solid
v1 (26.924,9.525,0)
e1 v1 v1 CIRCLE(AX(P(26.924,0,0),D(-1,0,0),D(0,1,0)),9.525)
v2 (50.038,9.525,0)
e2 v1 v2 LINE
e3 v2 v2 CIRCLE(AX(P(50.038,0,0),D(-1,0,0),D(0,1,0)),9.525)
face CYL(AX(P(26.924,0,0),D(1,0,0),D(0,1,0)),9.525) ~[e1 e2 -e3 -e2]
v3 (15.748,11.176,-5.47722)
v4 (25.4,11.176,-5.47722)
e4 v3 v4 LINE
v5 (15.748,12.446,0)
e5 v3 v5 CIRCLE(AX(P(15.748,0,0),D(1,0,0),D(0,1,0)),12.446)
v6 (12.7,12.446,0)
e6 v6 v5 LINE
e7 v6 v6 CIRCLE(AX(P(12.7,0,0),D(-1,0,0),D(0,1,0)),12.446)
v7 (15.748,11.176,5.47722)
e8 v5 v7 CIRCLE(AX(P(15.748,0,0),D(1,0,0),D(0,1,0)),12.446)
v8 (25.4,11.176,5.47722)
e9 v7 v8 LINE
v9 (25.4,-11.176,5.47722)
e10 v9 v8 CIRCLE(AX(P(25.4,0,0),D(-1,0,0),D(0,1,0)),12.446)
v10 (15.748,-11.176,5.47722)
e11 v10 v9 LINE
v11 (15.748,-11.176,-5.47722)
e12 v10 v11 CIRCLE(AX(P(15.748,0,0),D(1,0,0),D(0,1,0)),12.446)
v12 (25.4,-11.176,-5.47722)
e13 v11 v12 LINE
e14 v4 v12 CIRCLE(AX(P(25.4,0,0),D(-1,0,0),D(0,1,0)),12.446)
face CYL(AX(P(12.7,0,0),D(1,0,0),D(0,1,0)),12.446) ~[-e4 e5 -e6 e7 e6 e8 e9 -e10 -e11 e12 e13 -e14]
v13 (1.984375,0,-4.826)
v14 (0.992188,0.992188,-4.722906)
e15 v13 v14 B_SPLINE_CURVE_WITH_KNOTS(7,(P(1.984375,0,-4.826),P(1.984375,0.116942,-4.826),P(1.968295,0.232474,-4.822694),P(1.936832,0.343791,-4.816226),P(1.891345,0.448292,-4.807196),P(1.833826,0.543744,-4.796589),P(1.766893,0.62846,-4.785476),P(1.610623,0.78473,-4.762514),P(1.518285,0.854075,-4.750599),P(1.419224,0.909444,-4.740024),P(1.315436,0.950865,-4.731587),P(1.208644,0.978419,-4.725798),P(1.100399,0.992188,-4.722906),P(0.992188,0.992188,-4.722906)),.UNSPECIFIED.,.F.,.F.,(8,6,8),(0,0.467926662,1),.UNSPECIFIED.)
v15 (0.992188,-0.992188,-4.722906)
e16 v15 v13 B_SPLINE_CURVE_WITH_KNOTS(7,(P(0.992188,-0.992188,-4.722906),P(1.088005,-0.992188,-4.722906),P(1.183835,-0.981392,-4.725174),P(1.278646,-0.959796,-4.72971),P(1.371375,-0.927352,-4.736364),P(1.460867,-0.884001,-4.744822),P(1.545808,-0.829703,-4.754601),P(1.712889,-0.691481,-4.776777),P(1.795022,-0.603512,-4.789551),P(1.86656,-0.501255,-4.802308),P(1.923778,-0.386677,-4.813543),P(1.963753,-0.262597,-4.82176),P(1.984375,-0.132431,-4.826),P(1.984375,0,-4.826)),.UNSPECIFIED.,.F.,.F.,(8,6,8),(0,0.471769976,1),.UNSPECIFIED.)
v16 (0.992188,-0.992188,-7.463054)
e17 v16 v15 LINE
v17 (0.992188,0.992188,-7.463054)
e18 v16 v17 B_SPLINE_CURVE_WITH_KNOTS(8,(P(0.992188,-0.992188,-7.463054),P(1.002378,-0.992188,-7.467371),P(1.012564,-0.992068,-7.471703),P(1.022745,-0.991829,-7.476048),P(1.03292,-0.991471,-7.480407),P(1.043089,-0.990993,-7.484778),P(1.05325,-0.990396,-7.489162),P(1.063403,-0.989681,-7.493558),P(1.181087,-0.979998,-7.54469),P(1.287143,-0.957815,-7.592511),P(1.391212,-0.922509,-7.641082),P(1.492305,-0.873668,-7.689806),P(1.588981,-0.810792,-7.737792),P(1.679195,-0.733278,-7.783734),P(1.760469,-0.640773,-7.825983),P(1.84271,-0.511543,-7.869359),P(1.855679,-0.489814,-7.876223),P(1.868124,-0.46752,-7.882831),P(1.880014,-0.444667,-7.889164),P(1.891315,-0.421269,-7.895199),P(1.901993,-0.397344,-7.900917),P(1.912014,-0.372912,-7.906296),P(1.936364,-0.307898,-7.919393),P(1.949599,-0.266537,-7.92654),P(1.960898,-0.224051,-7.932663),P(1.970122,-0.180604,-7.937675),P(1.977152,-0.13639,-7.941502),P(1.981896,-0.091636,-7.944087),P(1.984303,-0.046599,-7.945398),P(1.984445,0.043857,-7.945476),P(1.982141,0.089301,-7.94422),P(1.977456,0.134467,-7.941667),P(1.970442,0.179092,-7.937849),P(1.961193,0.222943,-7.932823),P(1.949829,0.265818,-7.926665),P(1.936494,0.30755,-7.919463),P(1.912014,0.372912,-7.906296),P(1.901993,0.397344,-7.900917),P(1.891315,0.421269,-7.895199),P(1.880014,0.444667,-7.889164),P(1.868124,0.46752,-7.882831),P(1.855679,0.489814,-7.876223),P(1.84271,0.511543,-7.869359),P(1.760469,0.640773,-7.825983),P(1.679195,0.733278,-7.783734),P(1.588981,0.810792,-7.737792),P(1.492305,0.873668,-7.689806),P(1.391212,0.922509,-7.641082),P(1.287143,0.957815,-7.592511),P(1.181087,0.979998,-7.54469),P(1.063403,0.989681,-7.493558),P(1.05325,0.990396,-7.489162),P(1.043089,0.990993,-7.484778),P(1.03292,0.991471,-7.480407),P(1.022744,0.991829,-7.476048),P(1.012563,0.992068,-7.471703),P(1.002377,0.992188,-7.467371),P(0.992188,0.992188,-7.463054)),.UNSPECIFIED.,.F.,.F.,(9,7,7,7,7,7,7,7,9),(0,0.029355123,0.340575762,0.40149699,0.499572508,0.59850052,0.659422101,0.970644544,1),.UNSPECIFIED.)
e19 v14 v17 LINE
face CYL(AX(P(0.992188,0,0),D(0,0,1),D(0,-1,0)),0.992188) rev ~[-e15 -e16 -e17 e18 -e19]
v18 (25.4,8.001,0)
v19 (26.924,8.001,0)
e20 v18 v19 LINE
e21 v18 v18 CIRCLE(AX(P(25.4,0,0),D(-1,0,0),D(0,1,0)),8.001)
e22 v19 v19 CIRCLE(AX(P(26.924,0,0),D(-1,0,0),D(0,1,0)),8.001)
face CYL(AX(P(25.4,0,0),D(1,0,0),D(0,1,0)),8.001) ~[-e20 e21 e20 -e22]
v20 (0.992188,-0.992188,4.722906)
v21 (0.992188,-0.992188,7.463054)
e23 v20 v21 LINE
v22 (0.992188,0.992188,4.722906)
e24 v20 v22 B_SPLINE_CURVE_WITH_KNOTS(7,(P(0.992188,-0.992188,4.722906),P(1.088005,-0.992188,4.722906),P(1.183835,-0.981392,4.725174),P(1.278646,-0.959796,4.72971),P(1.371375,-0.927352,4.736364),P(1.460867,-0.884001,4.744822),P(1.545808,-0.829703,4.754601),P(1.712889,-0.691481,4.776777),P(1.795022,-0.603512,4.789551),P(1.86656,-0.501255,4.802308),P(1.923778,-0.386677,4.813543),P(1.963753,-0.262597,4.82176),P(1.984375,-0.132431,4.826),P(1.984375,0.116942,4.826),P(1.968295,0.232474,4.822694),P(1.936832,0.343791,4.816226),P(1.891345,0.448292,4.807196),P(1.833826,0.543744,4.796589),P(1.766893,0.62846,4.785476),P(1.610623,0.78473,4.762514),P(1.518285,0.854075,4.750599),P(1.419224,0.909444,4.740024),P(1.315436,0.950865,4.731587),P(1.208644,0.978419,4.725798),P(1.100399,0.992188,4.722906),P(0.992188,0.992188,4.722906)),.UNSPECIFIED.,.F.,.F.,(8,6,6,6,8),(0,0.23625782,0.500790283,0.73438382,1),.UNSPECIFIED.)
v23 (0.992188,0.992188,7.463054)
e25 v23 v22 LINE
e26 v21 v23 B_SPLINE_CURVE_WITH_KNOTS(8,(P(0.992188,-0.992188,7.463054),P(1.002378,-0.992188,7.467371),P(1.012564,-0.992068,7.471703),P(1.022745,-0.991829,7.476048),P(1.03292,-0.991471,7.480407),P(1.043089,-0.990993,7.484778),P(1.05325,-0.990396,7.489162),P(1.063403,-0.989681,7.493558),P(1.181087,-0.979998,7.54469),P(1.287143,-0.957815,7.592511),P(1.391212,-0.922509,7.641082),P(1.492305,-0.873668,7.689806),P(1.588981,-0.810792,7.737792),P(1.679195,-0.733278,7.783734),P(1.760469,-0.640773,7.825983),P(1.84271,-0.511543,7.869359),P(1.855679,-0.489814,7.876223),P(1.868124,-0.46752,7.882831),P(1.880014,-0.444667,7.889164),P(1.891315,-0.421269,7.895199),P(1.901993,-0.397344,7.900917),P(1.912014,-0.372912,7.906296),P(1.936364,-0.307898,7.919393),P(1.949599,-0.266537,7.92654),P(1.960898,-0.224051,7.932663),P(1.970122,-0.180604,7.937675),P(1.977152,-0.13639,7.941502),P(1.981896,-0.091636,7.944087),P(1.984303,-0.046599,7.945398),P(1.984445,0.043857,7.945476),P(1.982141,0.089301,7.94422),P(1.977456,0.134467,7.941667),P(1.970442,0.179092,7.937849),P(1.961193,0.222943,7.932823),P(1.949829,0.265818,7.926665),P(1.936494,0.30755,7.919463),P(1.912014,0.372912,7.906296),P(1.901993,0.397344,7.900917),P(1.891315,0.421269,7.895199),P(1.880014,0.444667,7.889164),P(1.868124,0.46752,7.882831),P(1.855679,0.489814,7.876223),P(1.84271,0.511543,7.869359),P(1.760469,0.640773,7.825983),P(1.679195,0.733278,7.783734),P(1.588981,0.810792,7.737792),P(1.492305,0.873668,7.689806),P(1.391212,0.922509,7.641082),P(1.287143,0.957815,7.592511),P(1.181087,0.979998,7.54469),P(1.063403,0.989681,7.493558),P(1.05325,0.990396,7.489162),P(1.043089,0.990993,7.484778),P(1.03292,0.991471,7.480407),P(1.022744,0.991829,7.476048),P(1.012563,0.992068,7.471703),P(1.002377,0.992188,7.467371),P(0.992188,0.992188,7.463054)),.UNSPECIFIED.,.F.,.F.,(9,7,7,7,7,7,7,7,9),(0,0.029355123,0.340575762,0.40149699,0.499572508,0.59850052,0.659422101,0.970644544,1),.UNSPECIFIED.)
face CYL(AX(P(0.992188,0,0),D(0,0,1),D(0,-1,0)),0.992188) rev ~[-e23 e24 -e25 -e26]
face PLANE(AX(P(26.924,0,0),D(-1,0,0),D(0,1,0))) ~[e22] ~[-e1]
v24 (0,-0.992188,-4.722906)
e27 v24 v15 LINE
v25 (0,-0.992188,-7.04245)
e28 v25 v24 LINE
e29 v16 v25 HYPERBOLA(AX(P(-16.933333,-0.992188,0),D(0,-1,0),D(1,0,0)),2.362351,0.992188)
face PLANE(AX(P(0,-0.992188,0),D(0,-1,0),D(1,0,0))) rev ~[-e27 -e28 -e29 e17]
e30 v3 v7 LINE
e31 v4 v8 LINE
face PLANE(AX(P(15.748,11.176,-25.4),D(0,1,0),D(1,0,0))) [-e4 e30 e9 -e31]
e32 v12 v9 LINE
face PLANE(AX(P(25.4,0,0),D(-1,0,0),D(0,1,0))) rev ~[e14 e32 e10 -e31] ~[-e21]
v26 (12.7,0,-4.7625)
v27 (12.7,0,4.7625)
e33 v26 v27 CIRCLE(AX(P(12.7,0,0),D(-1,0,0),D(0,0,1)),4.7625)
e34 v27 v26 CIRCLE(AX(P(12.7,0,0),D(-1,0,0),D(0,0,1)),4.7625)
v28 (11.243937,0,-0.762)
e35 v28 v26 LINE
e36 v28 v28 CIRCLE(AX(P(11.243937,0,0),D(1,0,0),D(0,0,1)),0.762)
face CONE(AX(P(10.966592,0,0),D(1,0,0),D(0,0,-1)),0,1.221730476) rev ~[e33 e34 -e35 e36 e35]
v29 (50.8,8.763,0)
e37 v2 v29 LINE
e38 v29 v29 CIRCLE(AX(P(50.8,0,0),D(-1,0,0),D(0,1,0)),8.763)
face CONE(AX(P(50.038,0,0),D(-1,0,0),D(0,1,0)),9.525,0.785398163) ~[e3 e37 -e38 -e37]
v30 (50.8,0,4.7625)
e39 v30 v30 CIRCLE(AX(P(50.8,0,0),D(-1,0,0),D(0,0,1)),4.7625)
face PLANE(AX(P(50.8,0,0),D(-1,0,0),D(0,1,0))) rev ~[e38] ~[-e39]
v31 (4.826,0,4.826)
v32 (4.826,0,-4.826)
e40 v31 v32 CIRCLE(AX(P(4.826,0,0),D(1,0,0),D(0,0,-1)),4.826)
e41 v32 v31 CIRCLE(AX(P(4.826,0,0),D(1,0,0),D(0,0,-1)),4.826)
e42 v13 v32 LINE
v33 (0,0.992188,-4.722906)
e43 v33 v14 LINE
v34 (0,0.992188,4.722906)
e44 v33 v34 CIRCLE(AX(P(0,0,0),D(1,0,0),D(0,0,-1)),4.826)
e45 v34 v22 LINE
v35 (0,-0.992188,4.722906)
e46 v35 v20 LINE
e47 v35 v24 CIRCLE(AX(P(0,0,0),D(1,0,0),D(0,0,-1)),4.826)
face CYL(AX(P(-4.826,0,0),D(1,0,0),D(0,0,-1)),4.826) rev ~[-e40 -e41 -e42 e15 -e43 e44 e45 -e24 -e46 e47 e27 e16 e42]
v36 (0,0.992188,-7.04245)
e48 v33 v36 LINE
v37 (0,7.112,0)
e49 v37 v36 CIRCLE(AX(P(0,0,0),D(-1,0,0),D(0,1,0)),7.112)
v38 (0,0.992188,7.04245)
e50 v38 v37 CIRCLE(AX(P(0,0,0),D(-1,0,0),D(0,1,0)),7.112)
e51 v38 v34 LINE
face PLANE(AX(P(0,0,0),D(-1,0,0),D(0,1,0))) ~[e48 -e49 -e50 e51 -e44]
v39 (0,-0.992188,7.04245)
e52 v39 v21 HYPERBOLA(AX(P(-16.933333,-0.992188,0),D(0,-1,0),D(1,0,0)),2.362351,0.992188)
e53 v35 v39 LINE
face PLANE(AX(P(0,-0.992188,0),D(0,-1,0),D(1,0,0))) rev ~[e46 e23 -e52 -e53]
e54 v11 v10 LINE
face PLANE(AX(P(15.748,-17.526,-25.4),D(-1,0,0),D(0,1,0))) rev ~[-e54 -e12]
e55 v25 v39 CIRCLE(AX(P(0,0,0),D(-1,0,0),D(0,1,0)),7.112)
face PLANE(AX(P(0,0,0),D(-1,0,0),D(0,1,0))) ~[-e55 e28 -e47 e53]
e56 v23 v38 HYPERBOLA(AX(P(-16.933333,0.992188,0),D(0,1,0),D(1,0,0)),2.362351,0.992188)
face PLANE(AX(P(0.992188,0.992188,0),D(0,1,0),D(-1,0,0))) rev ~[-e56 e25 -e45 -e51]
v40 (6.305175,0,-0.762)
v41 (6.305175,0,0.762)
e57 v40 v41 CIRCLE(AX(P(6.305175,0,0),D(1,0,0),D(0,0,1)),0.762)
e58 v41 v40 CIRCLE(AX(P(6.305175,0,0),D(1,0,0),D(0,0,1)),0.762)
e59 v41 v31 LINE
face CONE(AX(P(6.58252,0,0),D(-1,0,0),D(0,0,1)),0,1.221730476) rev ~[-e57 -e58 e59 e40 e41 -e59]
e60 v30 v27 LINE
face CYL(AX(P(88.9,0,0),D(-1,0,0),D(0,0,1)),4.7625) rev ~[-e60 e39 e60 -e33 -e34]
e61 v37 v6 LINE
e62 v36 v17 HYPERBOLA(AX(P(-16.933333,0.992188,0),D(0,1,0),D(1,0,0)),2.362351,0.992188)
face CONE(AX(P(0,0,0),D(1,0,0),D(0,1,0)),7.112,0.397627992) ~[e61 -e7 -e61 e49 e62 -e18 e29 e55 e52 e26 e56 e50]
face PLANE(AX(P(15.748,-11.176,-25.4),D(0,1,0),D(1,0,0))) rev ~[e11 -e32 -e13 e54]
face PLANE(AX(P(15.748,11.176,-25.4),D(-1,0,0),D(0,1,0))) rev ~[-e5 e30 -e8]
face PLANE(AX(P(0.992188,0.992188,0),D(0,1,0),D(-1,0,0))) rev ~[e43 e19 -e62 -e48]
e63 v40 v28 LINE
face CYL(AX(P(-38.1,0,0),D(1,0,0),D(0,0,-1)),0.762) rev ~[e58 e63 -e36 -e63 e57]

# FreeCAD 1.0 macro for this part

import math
import FreeCAD as App
import Part
import Sketcher
Q = App.Units.Quantity


def edges_at(feature, points):
    """Names of the edges that pass closest to the given points."""
    edges = feature.Shape.Edges
    near = lambda p: min(range(len(edges)), key=lambda i: edges[i].distToShape(Part.Vertex(*p))[0])
    return sorted({f"Edge{near(p) + 1}" for p in points})

doc = App.newDocument("Part")
body = doc.addObject("PartDesign::Body", "Body")

# Sketch on XY plane
sketch1 = body.newObject("Sketcher::SketchObject", "Sketch")
sketch1.AttachmentSupport = (doc.getObject("XY_Plane"), [""])
sketch1.MapMode = "FlatFace"
sketch1.addGeometry([
    Part.LineSegment(App.Vector(0, 7.112, 0), App.Vector(0, 0, 0)),  # 0
    Part.LineSegment(App.Vector(0, 0, 0), App.Vector(50.8, 0, 0)),  # 1
    Part.LineSegment(App.Vector(50.8, 0, 0), App.Vector(50.8, 9.525, 0)),  # 2
    Part.LineSegment(App.Vector(50.8, 9.525, 0), App.Vector(26.924, 9.525, 0)),  # 3
    Part.LineSegment(App.Vector(26.924, 9.525, 0), App.Vector(26.924, 8.001, 0)),  # 4
    Part.LineSegment(App.Vector(26.924, 8.001, 0), App.Vector(25.4, 8.001, 0)),  # 5
    Part.LineSegment(App.Vector(25.4, 8.001, 0), App.Vector(25.4, 12.446, 0)),  # 6
    Part.LineSegment(App.Vector(25.4, 12.446, 0), App.Vector(12.7, 12.446, 0)),  # 7
    Part.LineSegment(App.Vector(12.7, 12.446, 0), App.Vector(0, 7.112, 0)),  # 8
], False)
sketch1.addConstraint([
    Sketcher.Constraint("Coincident", 0, 2, 1, 1),
    Sketcher.Constraint("Coincident", 1, 2, 2, 1),
    Sketcher.Constraint("Coincident", 2, 2, 3, 1),
    Sketcher.Constraint("Coincident", 3, 2, 4, 1),
    Sketcher.Constraint("Coincident", 4, 2, 5, 1),
    Sketcher.Constraint("Coincident", 5, 2, 6, 1),
    Sketcher.Constraint("Coincident", 6, 2, 7, 1),
    Sketcher.Constraint("Coincident", 7, 2, 8, 1),
    Sketcher.Constraint("Coincident", 8, 2, 0, 1),
    Sketcher.Constraint("Vertical", 0),
    Sketcher.Constraint("Horizontal", 1),
    Sketcher.Constraint("Vertical", 2),
    Sketcher.Constraint("Horizontal", 3),
    Sketcher.Constraint("Vertical", 4),
    Sketcher.Constraint("Horizontal", 5),
    Sketcher.Constraint("Vertical", 6),
    Sketcher.Constraint("Horizontal", 7),
    Sketcher.Constraint("Coincident", 0, 2, -1, 1),
    Sketcher.Constraint("Equal", 5, 4),
    Sketcher.Constraint("DistanceX", 1, 1, 1, 2, Q("2 in")),
    Sketcher.Constraint("DistanceX", 7, 2, 7, 1, Q("0.5 in")),
    Sketcher.Constraint("DistanceX", -1, 1, 5, 2, Q("1 in")),
    Sketcher.Constraint("DistanceX", 3, 2, 3, 1, Q("0.94 in")),
    Sketcher.Constraint("DistanceY", 0, 2, 0, 1, Q("0.28 in")),
    Sketcher.Constraint("DistanceY", 2, 1, 2, 2, Q("0.375 in")),
    Sketcher.Constraint("DistanceY", 6, 1, 6, 2, Q("0.175 in")),
])
revolution = body.newObject("PartDesign::Revolution", "Revolution")
revolution.Profile = sketch1
revolution.ReferenceAxis = (sketch1, ["H_Axis"])
revolution.Angle = 360
doc.recompute()

chamfer = body.newObject("PartDesign::Chamfer", "Chamfer")
chamfer.Base = (revolution, edges_at(revolution, [(50.8, -9.525, 0)]))
chamfer.Size = Q("0.03 in")

# Sketch on YZ plane
sketch2 = body.newObject("Sketcher::SketchObject", "Sketch001")
sketch2.AttachmentSupport = (doc.getObject("YZ_Plane"), [""])
sketch2.MapMode = "FlatFace"
sketch2.AttachmentOffset = App.Placement(App.Vector(0, 0, 2 * 25.4), App.Rotation())
sketch2.addGeometry(Part.Circle(App.Vector(0, 0, 0), App.Vector(0, 0, 1), 4.7625), False)
sketch2.addConstraint([
    Sketcher.Constraint("Coincident", 0, 3, -1, 1),
    Sketcher.Constraint("Diameter", 0, Q("0.375 in")),
])
doc.recompute()
hole = body.newObject("PartDesign::Hole", "Hole")
hole.Profile = sketch2
hole.ThreadType = "None"
hole.Diameter = Q("0.375 in")
hole.DepthType = "Dimension"
hole.Depth = Q("1.5 in")
hole.DrillPoint = "Angled"
hole.DrillPointAngle = 140

# Sketch on YZ plane
sketch3 = body.newObject("Sketcher::SketchObject", "Sketch002")
sketch3.AttachmentSupport = (doc.getObject("YZ_Plane"), [""])
sketch3.MapMode = "FlatFace"
sketch3.addGeometry(Part.Circle(App.Vector(0, 0, 0), App.Vector(0, 0, 1), 0.762), False)
sketch3.addConstraint([
    Sketcher.Constraint("Coincident", 0, 3, -1, 1),
    Sketcher.Constraint("Diameter", 0, Q("0.06 in")),
])
doc.recompute()
hole2 = body.newObject("PartDesign::Hole", "Hole001")
hole2.Profile = sketch3
hole2.ThreadType = "None"
hole2.Diameter = Q("0.06 in")
hole2.DepthType = "Dimension"
hole2.Depth = Q("1.5 in")
hole2.DrillPoint = "Angled"
hole2.DrillPointAngle = 140
hole2.Reversed = True

# Sketch on YZ plane
sketch4 = body.newObject("Sketcher::SketchObject", "Sketch003")
sketch4.AttachmentSupport = (doc.getObject("YZ_Plane"), [""])
sketch4.MapMode = "FlatFace"
sketch4.addGeometry(Part.Circle(App.Vector(0, 0, 0), App.Vector(0, 0, 1), 4.826), False)
sketch4.addConstraint([
    Sketcher.Constraint("Coincident", 0, 3, -1, 1),
    Sketcher.Constraint("Diameter", 0, Q("0.38 in")),
])
doc.recompute()
hole3 = body.newObject("PartDesign::Hole", "Hole002")
hole3.Profile = sketch4
hole3.ThreadType = "None"
hole3.Diameter = Q("0.38 in")
hole3.DepthType = "Dimension"
hole3.Depth = Q("0.19 in")
hole3.DrillPoint = "Angled"
hole3.DrillPointAngle = 140
hole3.Reversed = True

# Sketch on XY plane
sketch5 = body.newObject("Sketcher::SketchObject", "Sketch004")
sketch5.AttachmentSupport = (doc.getObject("XY_Plane"), [""])
sketch5.MapMode = "FlatFace"
sketch5.addGeometry([
    Part.LineSegment(App.Vector(15.748, 13.803899, 0), App.Vector(15.748, 11.176, 0)),  # 0
    Part.LineSegment(App.Vector(15.748, 11.176, 0), App.Vector(25.4, 11.176, 0)),  # 1
    Part.LineSegment(App.Vector(25.4, 11.176, 0), App.Vector(25.4, 13.803899, 0)),  # 2
    Part.LineSegment(App.Vector(25.4, 13.803899, 0), App.Vector(15.748, 13.803899, 0)),  # 3
    Part.LineSegment(App.Vector(15.748, -11.176, 0), App.Vector(15.748, -17.526, 0)),  # 4
    Part.LineSegment(App.Vector(15.748, -17.526, 0), App.Vector(25.4, -17.526, 0)),  # 5
    Part.LineSegment(App.Vector(25.4, -17.526, 0), App.Vector(25.4, -11.176, 0)),  # 6
    Part.LineSegment(App.Vector(25.4, -11.176, 0), App.Vector(15.748, -11.176, 0)),  # 7
], False)
sketch5.addConstraint([
    Sketcher.Constraint("Coincident", 0, 2, 1, 1),
    Sketcher.Constraint("Coincident", 1, 2, 2, 1),
    Sketcher.Constraint("Coincident", 2, 2, 3, 1),
    Sketcher.Constraint("Coincident", 3, 2, 0, 1),
    Sketcher.Constraint("Coincident", 4, 2, 5, 1),
    Sketcher.Constraint("Coincident", 5, 2, 6, 1),
    Sketcher.Constraint("Coincident", 6, 2, 7, 1),
    Sketcher.Constraint("Coincident", 7, 2, 4, 1),
    Sketcher.Constraint("Vertical", 0),
    Sketcher.Constraint("Horizontal", 1),
    Sketcher.Constraint("Vertical", 2),
    Sketcher.Constraint("Horizontal", 3),
    Sketcher.Constraint("Vertical", 4),
    Sketcher.Constraint("Horizontal", 5),
    Sketcher.Constraint("Vertical", 6),
    Sketcher.Constraint("Horizontal", 7),
    Sketcher.Constraint("Symmetric", 1, 2, 6, 2, -1),
    Sketcher.Constraint("Vertical", 3, 2, 4, 2),
    Sketcher.Constraint("DistanceX", -1, 1, 1, 2, Q("1 in")),
    Sketcher.Constraint("DistanceX", 1, 1, 1, 2, Q("0.38 in")),
    Sketcher.Constraint("DistanceY", 4, 2, 4, 1, Q("0.25 in")),
    Sketcher.Constraint("DistanceY", -1, 1, 0, 2, Q("0.44 in")),
    Sketcher.Constraint("DistanceY", 0, 2, 0, 1, Q("2.627899 mm")),
])
pocket1 = body.newObject("PartDesign::Pocket", "Pocket")
pocket1.Profile = sketch5
pocket1.Type = "ThroughAll"
pocket1.Midplane = True

# Sketch on XY plane
sketch6 = body.newObject("Sketcher::SketchObject", "Sketch005")
sketch6.AttachmentSupport = (doc.getObject("XY_Plane"), [""])
sketch6.MapMode = "FlatFace"
sketch6.addGeometry([
    Part.LineSegment(App.Vector(0, 0.992188, 0), App.Vector(0, -0.992188, 0)),
    Part.LineSegment(App.Vector(0, -0.992188, 0), App.Vector(0.992188, -0.992188, 0)),
    Part.ArcOfCircle(Part.Circle(App.Vector(0.992188, 0, 0), App.Vector(0, 0, 1), 0.992188), math.radians(-90), math.radians(90)),
    Part.LineSegment(App.Vector(0.992188, 0.992188, 0), App.Vector(0, 0.992188, 0)),
], False)
sketch6.addConstraint([
    Sketcher.Constraint("Coincident", 0, 2, 1, 1),
    Sketcher.Constraint("Tangent", 1, 2, 2, 1),
    Sketcher.Constraint("Tangent", 2, 2, 3, 1),
    Sketcher.Constraint("Coincident", 3, 2, 0, 1),
    Sketcher.Constraint("Vertical", 0),
    Sketcher.Constraint("Horizontal", 1),
    Sketcher.Constraint("Horizontal", 3),
    Sketcher.Constraint("Symmetric", 0, 2, 3, 2, -1, 1),
    Sketcher.Constraint("DistanceY", 0, 2, 0, 1, Q("0.078125 in")),
    Sketcher.Constraint("DistanceX", 1, 1, 1, 2, Q("0.992188 mm")),
])
pocket2 = body.newObject("PartDesign::Pocket", "Pocket001")
pocket2.Profile = sketch6
pocket2.Length = Q("1 in")
pocket2.Midplane = True

doc.recompute()
